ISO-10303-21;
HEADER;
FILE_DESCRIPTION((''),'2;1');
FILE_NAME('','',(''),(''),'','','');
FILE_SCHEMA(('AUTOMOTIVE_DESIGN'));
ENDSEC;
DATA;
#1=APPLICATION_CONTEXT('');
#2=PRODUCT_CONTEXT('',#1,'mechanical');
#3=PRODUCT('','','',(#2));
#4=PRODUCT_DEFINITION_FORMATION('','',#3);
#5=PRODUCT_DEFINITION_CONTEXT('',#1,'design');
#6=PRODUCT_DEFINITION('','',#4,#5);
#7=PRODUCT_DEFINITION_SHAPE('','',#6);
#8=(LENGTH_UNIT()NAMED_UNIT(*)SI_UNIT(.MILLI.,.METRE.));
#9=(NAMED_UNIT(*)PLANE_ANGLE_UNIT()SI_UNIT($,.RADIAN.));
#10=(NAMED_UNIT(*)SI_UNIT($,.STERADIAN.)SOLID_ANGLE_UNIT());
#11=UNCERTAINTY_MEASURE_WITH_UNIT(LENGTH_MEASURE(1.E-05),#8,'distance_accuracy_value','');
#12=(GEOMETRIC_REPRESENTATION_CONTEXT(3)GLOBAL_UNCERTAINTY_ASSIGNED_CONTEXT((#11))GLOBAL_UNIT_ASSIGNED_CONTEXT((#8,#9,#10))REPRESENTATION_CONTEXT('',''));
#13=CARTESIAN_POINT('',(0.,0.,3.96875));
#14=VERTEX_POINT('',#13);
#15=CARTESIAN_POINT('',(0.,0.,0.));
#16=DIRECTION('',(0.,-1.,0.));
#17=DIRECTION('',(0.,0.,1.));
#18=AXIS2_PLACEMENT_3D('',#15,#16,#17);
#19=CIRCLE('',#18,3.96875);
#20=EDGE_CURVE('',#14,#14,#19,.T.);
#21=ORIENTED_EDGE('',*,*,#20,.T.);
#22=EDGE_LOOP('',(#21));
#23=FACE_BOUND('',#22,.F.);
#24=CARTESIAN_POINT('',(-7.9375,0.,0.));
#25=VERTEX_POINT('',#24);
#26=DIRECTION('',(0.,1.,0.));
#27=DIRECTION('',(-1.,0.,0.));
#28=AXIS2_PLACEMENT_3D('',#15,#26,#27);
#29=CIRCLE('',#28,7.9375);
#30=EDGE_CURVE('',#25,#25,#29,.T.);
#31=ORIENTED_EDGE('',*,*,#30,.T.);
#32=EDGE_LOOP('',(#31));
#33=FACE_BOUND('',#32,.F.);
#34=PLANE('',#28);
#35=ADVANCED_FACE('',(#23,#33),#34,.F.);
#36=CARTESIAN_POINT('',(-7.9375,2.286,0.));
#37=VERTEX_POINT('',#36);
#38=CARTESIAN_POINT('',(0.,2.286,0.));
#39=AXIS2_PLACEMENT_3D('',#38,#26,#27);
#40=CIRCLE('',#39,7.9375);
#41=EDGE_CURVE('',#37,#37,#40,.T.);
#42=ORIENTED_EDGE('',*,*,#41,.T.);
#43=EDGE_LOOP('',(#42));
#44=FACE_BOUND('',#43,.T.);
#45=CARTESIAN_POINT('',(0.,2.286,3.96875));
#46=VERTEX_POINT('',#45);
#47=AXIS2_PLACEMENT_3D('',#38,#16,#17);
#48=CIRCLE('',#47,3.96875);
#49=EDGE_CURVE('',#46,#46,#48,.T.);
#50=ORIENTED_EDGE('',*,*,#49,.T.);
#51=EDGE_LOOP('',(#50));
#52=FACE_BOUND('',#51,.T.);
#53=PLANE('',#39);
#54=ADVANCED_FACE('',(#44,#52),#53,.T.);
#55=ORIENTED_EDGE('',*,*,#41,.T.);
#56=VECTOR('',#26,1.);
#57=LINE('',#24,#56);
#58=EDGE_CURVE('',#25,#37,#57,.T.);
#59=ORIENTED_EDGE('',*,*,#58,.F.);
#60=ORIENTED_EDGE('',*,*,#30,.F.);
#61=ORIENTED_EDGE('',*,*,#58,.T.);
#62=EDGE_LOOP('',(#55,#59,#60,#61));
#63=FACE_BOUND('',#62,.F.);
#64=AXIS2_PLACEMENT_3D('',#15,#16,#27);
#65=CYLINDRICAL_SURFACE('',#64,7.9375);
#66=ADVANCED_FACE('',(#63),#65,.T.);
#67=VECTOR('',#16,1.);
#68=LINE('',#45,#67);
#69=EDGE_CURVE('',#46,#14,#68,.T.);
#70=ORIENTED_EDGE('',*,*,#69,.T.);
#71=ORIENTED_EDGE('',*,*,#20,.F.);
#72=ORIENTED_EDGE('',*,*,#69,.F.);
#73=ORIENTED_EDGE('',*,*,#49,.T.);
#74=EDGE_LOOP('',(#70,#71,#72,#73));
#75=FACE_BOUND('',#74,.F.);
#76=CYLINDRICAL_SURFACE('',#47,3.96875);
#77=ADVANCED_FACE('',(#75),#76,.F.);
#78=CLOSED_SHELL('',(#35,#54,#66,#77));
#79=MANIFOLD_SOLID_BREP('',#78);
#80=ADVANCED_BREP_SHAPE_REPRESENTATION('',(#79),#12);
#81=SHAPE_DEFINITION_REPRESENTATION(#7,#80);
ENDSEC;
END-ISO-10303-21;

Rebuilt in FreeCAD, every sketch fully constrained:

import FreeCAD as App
import Part
import Sketcher
from FreeCAD import Vector
Q = App.Units.Quantity

doc = App.newDocument("Part")
body = doc.addObject("PartDesign::Body", "Body")

# Sketch on XZ plane
sketch1 = body.newObject("Sketcher::SketchObject", "Sketch")
sketch1.AttachmentSupport = (doc.getObject("XZ_Plane"), [""])
sketch1.MapMode = "FlatFace"
sketch1.addGeometry(Part.Circle(Vector(0, 0, 0), Vector(0, 0, 1), 7.9375), False)
sketch1.addConstraint(Sketcher.Constraint("Coincident", 0, 3, -1, 1))
sketch1.addConstraint(Sketcher.Constraint("Diameter", 0, Q("0.625 in")))
pad1 = body.newObject("PartDesign::Pad", "Pad")
pad1.Profile = sketch1
pad1.Length = Q("0.09 in")
pad1.Reversed = True

# Sketch on XZ plane
sketch2 = body.newObject("Sketcher::SketchObject", "Sketch001")
sketch2.AttachmentSupport = (doc.getObject("XZ_Plane"), [""])
sketch2.MapMode = "FlatFace"
sketch2.AttachmentOffset = App.Placement(Vector(0, 0, -0.09 * 25.4), App.Rotation())
sketch2.addGeometry(Part.Circle(Vector(0, 0, 0), Vector(0, 0, 1), 3.96875), False)
sketch2.addConstraint(Sketcher.Constraint("Coincident", 0, 3, -1, 1))
sketch2.addConstraint(Sketcher.Constraint("Diameter", 0, Q("0.3125 in")))
doc.recompute()
hole = body.newObject("PartDesign::Hole", "Hole")
hole.Profile = sketch2
hole.ThreadType = "None"
hole.Diameter = Q("0.3125 in")
hole.DepthType = "Dimension"
hole.Depth = Q("0.3125 in")
hole.DrillPoint = "Angled"
hole.DrillPointAngle = 118
hole.Reversed = True

doc.recompute()
